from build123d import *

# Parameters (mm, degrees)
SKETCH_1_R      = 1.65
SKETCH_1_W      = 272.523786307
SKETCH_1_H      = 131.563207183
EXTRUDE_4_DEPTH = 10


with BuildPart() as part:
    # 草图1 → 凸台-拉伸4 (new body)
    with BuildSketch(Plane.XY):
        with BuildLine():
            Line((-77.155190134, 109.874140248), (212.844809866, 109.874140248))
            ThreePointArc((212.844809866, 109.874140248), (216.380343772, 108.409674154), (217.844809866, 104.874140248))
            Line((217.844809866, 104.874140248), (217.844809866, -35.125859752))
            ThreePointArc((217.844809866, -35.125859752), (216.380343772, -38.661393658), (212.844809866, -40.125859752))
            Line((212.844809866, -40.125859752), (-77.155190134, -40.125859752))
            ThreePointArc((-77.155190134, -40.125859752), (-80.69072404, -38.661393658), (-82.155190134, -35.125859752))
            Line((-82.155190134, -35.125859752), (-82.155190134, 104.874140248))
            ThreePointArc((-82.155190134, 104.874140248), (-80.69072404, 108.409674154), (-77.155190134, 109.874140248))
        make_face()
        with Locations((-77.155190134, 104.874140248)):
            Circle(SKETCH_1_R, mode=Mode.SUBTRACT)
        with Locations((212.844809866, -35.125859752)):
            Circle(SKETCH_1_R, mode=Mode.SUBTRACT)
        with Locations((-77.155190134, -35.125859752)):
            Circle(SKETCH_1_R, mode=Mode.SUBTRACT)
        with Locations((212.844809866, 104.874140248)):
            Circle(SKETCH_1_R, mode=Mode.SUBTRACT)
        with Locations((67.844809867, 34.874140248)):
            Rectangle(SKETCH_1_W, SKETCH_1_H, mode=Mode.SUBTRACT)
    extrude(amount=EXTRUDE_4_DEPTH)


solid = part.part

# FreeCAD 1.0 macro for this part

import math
import FreeCAD as App
import Part
import Sketcher
from FreeCAD import Vector
Q = App.Units.Quantity

doc = App.newDocument("Part")
params = doc.addObject("Spreadsheet::Sheet", "Params")
for row, (alias, value) in enumerate([
    ("sketch1_radius", "5 mm"),
    ("sketch1_diameter", "3.3 mm"),
    ("sketch1_width", "290 mm"),
    ("sketch1_height", "140 mm"),
    ("pad1_length", "10 mm"),
], start=1):
    params.set(f"A{row}", alias)
    params.set(f"B{row}", "=" + value)
    params.setAlias(f"B{row}", alias)

body = doc.addObject("PartDesign::Body", "Body")

sketch1 = body.newObject("Sketcher::SketchObject", "Sketch")
sketch1.AttachmentSupport = (doc.getObject("XY_Plane"), [""])
sketch1.MapMode = "FlatFace"
sketch1.addGeometry([
    Part.LineSegment(Vector(212.8, 109.9, 0), Vector(-77.2, 109.9, 0)),
    Part.ArcOfCircle(Part.Circle(Vector(-77.2, 104.9, 0), Vector(0, 0, 1), 5), math.radians(90), math.radians(180)),
    Part.LineSegment(Vector(-82.2, 104.9, 0), Vector(-82.2, -35.1, 0)),
    Part.ArcOfCircle(Part.Circle(Vector(-77.2, -35.1, 0), Vector(0, 0, 1), 5), math.radians(180), math.radians(270)),
    Part.LineSegment(Vector(-77.2, -40.1, 0), Vector(212.8, -40.1, 0)),
    Part.ArcOfCircle(Part.Circle(Vector(212.8, -35.1, 0), Vector(0, 0, 1), 5), math.radians(-90), math.radians(0)),
    Part.LineSegment(Vector(217.8, -35.1, 0), Vector(217.8, 104.9, 0)),
    Part.ArcOfCircle(Part.Circle(Vector(212.8, 104.9, 0), Vector(0, 0, 1), 5), math.radians(0), math.radians(90)),
    Part.Circle(Vector(212.8, -35.1, 0), Vector(0, 0, 1), 1.6),
    Part.Circle(Vector(-77.2, -35.1, 0), Vector(0, 0, 1), 1.6),
    Part.LineSegment(Vector(-68.4, -30.9, 0), Vector(-68.4, 100.7, 0)),
    Part.LineSegment(Vector(-68.4, 100.7, 0), Vector(204.1, 100.7, 0)),
    Part.LineSegment(Vector(204.1, 100.7, 0), Vector(204.1, -30.9, 0)),
    Part.LineSegment(Vector(204.1, -30.9, 0), Vector(-68.4, -30.9, 0)),
    Part.Circle(Vector(212.8, 104.9, 0), Vector(0, 0, 1), 1.6),
    Part.Circle(Vector(-77.2, 104.9, 0), Vector(0, 0, 1), 1.6),
], False)
sketch1.addConstraint([
    Sketcher.Constraint("Tangent", 0, 2, 1, 1),
    Sketcher.Constraint("Tangent", 1, 2, 2, 1),
    Sketcher.Constraint("Tangent", 2, 2, 3, 1),
    Sketcher.Constraint("Tangent", 3, 2, 4, 1),
    Sketcher.Constraint("Tangent", 4, 2, 5, 1),
    Sketcher.Constraint("Tangent", 5, 2, 6, 1),
    Sketcher.Constraint("Tangent", 6, 2, 7, 1),
    Sketcher.Constraint("Tangent", 7, 2, 0, 1),
    Sketcher.Constraint("Coincident", 10, 2, 11, 1),
    Sketcher.Constraint("Coincident", 11, 2, 12, 1),
    Sketcher.Constraint("Coincident", 12, 2, 13, 1),
    Sketcher.Constraint("Coincident", 13, 2, 10, 1),
    Sketcher.Constraint("Horizontal", 0),
    Sketcher.Constraint("Vertical", 2),
    Sketcher.Constraint("Horizontal", 4),
    Sketcher.Constraint("Vertical", 6),
    Sketcher.Constraint("Vertical", 10),
    Sketcher.Constraint("Horizontal", 11),
    Sketcher.Constraint("Vertical", 12),
    Sketcher.Constraint("Horizontal", 13),
    Sketcher.Constraint("Coincident", 8, 3, 5, 3),
    Sketcher.Constraint("Coincident", 9, 3, 3, 3),
    Sketcher.Constraint("Coincident", 14, 3, 7, 3),
    Sketcher.Constraint("Coincident", 15, 3, 1, 3),
    Sketcher.Constraint("Equal", 1, 3),
    Sketcher.Constraint("Equal", 3, 5),
    Sketcher.Constraint("Equal", 5, 7),
    Sketcher.Constraint("Equal", 8, 9),
    Sketcher.Constraint("Equal", 9, 14),
    Sketcher.Constraint("Equal", 14, 15),
    Sketcher.Constraint("Radius", 1, Q("5 mm")),
    Sketcher.Constraint("Diameter", 8, Q("3.3 mm")),
    Sketcher.Constraint("DistanceX", 0, 2, 0, 1, Q("290 mm")),
    Sketcher.Constraint("DistanceY", 2, 2, 2, 1, Q("140 mm")),
    Sketcher.Constraint("DistanceX", 11, 1, 11, 2, Q("272.523786 mm")),
    Sketcher.Constraint("DistanceY", 10, 1, 10, 2, Q("131.563207 mm")),
    Sketcher.Constraint("DistanceX", 1, 3, -1, 1, Q("77.15519 mm")),
    Sketcher.Constraint("DistanceY", -1, 1, 1, 3, Q("104.87414 mm")),
    Sketcher.Constraint("DistanceX", 10, 2, -1, 1, Q("68.417083 mm")),
    Sketcher.Constraint("DistanceY", -1, 1, 10, 2, Q("100.655744 mm")),
])
sketch1.setExpression("Constraints[30]", "Params.sketch1_radius")
sketch1.setExpression("Constraints[31]", "Params.sketch1_diameter")
sketch1.setExpression("Constraints[32]", "Params.sketch1_width")
sketch1.setExpression("Constraints[33]", "Params.sketch1_height")
pad1 = body.newObject("PartDesign::Pad", "Pad")
pad1.Profile = sketch1
pad1.setExpression("Length", "Params.pad1_length")

doc.recompute()
